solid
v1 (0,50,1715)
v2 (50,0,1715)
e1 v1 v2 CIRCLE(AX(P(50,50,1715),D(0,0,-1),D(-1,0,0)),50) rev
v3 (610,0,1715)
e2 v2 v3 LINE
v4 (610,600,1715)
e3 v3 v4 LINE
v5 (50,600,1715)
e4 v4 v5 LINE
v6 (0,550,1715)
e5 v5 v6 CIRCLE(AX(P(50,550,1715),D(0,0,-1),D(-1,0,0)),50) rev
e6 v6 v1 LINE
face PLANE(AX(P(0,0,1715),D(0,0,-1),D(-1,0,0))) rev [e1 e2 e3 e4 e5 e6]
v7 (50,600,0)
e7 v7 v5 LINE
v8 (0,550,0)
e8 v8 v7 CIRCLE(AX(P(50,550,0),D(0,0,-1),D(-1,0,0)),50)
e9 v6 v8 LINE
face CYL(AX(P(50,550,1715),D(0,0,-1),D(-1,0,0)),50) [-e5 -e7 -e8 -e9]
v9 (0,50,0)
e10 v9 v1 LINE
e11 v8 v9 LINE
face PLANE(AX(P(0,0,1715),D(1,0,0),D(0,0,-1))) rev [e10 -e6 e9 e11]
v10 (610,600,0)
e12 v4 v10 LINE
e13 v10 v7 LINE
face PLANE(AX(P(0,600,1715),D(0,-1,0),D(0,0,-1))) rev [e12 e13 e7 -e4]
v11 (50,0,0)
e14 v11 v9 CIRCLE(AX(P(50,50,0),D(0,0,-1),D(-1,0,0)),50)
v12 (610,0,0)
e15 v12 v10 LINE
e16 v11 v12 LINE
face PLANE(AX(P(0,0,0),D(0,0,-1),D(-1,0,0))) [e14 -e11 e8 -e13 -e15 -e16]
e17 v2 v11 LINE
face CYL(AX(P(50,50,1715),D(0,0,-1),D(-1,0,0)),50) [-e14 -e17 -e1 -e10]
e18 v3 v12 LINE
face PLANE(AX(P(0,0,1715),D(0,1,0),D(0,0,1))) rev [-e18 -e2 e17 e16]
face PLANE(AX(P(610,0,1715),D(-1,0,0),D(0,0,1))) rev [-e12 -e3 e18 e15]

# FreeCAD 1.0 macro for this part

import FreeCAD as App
import Part
import Sketcher

V = App.Vector


def edges_at(feature, points):
    """Names of the edges that pass closest to the given points."""
    edges = feature.Shape.Edges
    near = lambda p: min(range(len(edges)), key=lambda i: edges[i].distToShape(Part.Vertex(*p))[0])
    return sorted({f"Edge{near(p) + 1}" for p in points})


def add_polygon(sketch, points):
    """Adds a closed chain of lines whose ends are joined by coincident constraints."""
    first, n = sketch.GeometryCount, len(points)
    for a, b in zip(points, points[1:] + points[:1]):
        sketch.addGeometry(Part.LineSegment(App.Vector(*a, 0), App.Vector(*b, 0)), False)
    for i in range(n):
        sketch.addConstraint(Sketcher.Constraint("Coincident", first + i, 2, first + (i + 1) % n, 1))

doc = App.newDocument("Part")
body = doc.addObject("PartDesign::Body", "Body")

sketch1 = body.newObject("Sketcher::SketchObject", "Sketch")
sketch1.AttachmentSupport = (doc.getObject("XY_Plane"), [""])
sketch1.MapMode = "FlatFace"
add_polygon(sketch1, [(0, 600), (0, 0), (610, 0), (610, 600)])
sketch1.addConstraint(Sketcher.Constraint("Vertical", 0))
sketch1.addConstraint(Sketcher.Constraint("Horizontal", 1))
sketch1.addConstraint(Sketcher.Constraint("Vertical", 2))
sketch1.addConstraint(Sketcher.Constraint("Horizontal", 3))
sketch1.addConstraint(Sketcher.Constraint("Coincident", 0, 2, -1, 1))
sketch1.addConstraint(Sketcher.Constraint("DistanceX", 1, 1, 1, 2, 610.0))
sketch1.addConstraint(Sketcher.Constraint("DistanceY", 0, 2, 0, 1, 600.0))
pad1 = body.newObject("PartDesign::Pad", "Pad")
pad1.Profile = sketch1
pad1.Length = 1715
doc.recompute()

fillet = body.newObject("PartDesign::Fillet", "Fillet")
fillet.Base = (pad1, edges_at(pad1, [(0, 600, 857.5), (0, 0, 857.5)]))
fillet.Radius = 50

doc.recompute()
